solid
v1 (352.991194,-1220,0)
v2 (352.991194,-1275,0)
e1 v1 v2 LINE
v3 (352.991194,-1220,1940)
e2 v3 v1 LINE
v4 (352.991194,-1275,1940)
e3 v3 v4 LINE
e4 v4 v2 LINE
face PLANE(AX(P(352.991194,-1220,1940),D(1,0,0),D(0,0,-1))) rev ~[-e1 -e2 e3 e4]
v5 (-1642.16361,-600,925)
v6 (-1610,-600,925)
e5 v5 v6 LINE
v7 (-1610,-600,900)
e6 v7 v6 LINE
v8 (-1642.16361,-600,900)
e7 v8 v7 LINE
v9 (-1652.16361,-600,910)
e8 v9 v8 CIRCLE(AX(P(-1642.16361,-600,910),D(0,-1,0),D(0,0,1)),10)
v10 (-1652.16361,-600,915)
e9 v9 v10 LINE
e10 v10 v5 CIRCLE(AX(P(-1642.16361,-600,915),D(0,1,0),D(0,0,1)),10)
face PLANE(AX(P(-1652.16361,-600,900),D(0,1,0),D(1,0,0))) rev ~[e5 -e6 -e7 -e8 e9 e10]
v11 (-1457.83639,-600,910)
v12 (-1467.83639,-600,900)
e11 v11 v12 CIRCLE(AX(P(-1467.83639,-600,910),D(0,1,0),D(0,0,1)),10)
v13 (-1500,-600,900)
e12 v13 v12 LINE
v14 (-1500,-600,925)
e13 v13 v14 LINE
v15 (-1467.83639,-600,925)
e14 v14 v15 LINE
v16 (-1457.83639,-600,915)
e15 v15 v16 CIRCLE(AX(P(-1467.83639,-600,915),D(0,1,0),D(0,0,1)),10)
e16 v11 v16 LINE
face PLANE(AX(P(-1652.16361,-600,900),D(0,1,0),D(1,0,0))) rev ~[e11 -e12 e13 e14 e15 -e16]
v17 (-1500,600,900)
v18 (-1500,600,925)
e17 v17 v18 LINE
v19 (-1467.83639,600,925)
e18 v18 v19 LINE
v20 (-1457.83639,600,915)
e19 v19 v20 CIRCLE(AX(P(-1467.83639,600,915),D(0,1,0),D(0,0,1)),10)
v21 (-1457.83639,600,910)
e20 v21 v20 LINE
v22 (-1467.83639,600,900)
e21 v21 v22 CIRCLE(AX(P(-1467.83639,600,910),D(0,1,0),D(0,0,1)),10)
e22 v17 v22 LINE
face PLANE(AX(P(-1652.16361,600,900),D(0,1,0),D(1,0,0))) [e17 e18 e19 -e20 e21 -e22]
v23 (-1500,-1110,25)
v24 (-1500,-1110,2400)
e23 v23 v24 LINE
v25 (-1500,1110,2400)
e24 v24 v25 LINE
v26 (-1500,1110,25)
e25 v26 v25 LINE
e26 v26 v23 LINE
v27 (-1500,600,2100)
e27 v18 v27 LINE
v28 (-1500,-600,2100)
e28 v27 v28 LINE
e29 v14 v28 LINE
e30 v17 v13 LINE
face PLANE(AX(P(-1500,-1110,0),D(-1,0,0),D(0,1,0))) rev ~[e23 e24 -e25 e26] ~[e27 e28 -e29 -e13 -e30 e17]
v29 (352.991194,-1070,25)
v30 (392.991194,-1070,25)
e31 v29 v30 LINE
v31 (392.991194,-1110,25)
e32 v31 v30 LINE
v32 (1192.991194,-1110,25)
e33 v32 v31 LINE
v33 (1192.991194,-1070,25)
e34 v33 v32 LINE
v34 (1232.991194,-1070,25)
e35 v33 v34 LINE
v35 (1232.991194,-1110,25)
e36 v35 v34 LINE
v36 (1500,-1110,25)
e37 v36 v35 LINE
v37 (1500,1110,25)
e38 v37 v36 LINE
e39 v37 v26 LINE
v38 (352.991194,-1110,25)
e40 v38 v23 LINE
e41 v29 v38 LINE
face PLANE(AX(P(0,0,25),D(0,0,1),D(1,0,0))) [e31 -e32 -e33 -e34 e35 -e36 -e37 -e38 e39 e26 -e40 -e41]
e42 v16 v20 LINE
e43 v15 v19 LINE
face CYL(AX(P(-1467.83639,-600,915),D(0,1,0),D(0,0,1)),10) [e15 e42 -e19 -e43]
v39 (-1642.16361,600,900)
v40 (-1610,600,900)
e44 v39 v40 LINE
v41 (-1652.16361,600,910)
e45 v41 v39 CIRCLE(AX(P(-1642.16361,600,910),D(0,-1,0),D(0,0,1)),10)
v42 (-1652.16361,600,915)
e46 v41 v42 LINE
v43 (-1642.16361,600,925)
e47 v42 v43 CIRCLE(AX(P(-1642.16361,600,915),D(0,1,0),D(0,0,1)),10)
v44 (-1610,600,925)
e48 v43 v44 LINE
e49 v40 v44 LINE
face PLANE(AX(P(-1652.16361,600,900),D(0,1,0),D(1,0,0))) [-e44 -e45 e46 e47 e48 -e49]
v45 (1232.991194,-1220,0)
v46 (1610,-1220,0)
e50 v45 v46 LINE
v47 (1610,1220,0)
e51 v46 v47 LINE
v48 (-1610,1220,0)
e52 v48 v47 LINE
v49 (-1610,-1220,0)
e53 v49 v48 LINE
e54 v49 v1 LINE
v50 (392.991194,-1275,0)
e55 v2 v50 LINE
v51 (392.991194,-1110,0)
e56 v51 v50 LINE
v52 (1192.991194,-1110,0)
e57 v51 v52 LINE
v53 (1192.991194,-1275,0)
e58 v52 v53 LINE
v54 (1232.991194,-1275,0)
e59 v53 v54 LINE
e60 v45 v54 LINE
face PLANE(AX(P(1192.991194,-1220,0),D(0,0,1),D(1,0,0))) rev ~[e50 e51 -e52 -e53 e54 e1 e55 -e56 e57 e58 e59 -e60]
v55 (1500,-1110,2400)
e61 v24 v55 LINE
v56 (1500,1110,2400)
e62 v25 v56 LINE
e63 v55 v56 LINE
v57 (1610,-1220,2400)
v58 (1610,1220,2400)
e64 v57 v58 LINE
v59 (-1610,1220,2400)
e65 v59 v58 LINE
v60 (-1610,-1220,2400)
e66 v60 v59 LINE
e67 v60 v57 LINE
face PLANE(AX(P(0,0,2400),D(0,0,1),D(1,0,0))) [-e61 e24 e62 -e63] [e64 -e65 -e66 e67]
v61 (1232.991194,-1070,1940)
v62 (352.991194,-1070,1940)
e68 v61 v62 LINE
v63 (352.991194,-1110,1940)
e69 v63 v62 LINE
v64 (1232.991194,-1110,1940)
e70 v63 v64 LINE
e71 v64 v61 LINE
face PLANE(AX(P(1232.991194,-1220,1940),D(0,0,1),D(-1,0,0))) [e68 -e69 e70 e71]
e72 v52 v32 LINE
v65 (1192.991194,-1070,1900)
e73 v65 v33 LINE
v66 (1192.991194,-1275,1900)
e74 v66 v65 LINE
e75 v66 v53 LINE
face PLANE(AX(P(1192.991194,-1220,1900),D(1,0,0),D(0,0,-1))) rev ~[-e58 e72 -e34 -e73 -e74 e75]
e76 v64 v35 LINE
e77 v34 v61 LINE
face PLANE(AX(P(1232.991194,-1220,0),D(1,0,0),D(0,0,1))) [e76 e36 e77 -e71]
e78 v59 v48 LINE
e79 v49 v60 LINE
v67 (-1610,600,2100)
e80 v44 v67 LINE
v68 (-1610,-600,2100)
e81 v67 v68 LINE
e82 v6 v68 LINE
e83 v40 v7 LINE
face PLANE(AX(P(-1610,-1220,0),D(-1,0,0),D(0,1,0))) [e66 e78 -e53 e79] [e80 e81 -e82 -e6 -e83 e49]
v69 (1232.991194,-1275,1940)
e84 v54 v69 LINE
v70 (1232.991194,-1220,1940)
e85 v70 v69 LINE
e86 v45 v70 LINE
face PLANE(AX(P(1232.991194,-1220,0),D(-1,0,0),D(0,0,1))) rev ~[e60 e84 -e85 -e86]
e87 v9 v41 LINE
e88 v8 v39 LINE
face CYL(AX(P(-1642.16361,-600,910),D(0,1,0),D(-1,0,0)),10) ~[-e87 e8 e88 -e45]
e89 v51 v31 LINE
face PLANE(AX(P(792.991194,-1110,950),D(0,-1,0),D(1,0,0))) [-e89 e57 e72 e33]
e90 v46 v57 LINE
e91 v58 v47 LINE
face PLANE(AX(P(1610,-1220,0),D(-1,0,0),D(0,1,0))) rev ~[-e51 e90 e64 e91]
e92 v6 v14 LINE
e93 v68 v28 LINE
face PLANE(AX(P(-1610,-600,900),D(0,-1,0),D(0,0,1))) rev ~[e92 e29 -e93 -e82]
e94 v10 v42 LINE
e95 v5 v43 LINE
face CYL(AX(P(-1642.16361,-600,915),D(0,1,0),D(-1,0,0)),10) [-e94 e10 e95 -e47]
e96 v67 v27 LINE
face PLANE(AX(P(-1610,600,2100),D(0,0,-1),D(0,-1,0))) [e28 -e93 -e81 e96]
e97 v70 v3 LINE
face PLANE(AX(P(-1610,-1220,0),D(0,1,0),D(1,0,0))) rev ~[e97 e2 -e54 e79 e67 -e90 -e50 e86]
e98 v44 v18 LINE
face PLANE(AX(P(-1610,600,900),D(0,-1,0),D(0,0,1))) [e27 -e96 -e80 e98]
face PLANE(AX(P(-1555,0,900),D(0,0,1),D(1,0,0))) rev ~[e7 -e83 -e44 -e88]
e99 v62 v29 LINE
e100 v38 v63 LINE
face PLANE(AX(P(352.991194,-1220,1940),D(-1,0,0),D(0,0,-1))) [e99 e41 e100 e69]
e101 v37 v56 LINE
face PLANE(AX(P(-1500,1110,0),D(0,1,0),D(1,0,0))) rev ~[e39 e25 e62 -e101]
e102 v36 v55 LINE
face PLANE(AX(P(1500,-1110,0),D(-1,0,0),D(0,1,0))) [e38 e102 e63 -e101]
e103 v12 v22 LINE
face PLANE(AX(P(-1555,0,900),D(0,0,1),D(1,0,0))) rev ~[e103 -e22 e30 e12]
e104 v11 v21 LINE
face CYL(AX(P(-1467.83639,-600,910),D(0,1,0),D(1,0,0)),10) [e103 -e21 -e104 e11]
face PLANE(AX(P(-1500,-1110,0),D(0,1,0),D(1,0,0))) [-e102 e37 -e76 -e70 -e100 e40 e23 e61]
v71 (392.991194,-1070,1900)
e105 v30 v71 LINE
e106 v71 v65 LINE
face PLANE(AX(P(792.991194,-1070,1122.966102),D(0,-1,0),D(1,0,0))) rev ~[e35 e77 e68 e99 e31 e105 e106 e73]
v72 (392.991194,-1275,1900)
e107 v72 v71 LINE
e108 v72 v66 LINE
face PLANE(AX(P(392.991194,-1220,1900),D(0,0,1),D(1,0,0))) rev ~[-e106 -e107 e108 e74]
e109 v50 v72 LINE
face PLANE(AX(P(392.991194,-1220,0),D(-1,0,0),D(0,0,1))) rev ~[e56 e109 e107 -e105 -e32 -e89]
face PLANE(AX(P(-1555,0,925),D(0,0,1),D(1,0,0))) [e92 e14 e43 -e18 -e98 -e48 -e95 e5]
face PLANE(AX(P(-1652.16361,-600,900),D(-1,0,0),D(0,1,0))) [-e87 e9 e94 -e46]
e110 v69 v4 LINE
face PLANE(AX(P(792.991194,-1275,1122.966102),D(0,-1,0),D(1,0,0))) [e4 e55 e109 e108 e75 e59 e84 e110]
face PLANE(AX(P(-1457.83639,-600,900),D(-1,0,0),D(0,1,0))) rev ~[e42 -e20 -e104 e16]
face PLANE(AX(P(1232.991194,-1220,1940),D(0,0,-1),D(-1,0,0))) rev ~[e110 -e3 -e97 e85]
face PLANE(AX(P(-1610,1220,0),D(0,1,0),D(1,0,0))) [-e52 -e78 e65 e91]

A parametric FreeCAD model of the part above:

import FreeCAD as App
import Part
import Sketcher
from FreeCAD import Vector


def edges_at(feature, points):
    """Names of the edges that pass closest to the given points."""
    edges = feature.Shape.Edges
    near = lambda p: min(range(len(edges)), key=lambda i: edges[i].distToShape(Part.Vertex(*p))[0])
    return sorted({f"Edge{near(p) + 1}" for p in points})

doc = App.newDocument("Part")
params = doc.addObject("Spreadsheet::Sheet", "Params")
for row, (alias, value) in enumerate([
    ("sketch1_width", "3220 mm"),
    ("sketch1_height", "2440 mm"),
    ("pad1_length", "25 mm"),
    ("sketch2_width", "3220 mm"),
    ("sketch2_width2", "3000 mm"),
    ("sketch2_height", "2440 mm"),
    ("sketch2_height2", "2220 mm"),
    ("pad2_length", "2400 mm"),
    ("sketch3_width", "800 mm"),
    ("sketch3_height", "1900 mm"),
    ("pocket1_length", "110 mm"),
    ("sketch4_width", "40 mm"),
    ("sketch4_width2", "880 mm"),
    ("sketch4_height", "1900 mm"),
    ("sketch4_height2", "1940 mm"),
    ("pad3_length", "55 mm"),
    ("pad3_length2", "150 mm"),
    ("sketch5_width", "1200 mm"),
    ("pocket2_length", "2505 mm"),
    ("sketch6_height", "1200 mm"),
    ("pad4_length", "25 mm"),
    ("fillet_radius", "10 mm"),
], start=1):
    params.set(f"A{row}", alias)
    params.set(f"B{row}", "=" + value)
    params.setAlias(f"B{row}", alias)

body = doc.addObject("PartDesign::Body", "Body")

sketch1 = body.newObject("Sketcher::SketchObject", "Sketch")
sketch1.AttachmentSupport = (doc.getObject("XY_Plane"), [""])
sketch1.MapMode = "FlatFace"
sketch1.addGeometry([
    Part.LineSegment(Vector(-1610, 1220, 0), Vector(-1610, -1220, 0)),
    Part.LineSegment(Vector(-1610, -1220, 0), Vector(1610, -1220, 0)),
    Part.LineSegment(Vector(1610, -1220, 0), Vector(1610, 1220, 0)),
    Part.LineSegment(Vector(1610, 1220, 0), Vector(-1610, 1220, 0)),
], False)
sketch1.addConstraint([
    Sketcher.Constraint("Coincident", 0, 2, 1, 1),
    Sketcher.Constraint("Coincident", 1, 2, 2, 1),
    Sketcher.Constraint("Coincident", 2, 2, 3, 1),
    Sketcher.Constraint("Coincident", 3, 2, 0, 1),
    Sketcher.Constraint("Vertical", 0),
    Sketcher.Constraint("Horizontal", 1),
    Sketcher.Constraint("Vertical", 2),
    Sketcher.Constraint("Horizontal", 3),
    Sketcher.Constraint("Symmetric", 0, 2, 2, 2, -1, 1),
    Sketcher.Constraint("DistanceX", 1, 1, 1, 2, 3220.0),
    Sketcher.Constraint("DistanceY", 0, 2, 0, 1, 2440.0),
])
sketch1.setExpression("Constraints[9]", "Params.sketch1_width")
sketch1.setExpression("Constraints[10]", "Params.sketch1_height")
pad1 = body.newObject("PartDesign::Pad", "Pad")
pad1.Profile = sketch1
pad1.setExpression("Length", "Params.pad1_length")

sketch2 = body.newObject("Sketcher::SketchObject", "Sketch001")
sketch2.AttachmentSupport = (doc.getObject("XY_Plane"), [""])
sketch2.MapMode = "FlatFace"
sketch2.addGeometry([
    Part.LineSegment(Vector(-1610, 1220, 0), Vector(-1610, -1220, 0)),
    Part.LineSegment(Vector(-1610, -1220, 0), Vector(1610, -1220, 0)),
    Part.LineSegment(Vector(1610, -1220, 0), Vector(1610, 1220, 0)),
    Part.LineSegment(Vector(1610, 1220, 0), Vector(-1610, 1220, 0)),
    Part.LineSegment(Vector(1500, -1110, 0), Vector(-1500, -1110, 0)),
    Part.LineSegment(Vector(-1500, -1110, 0), Vector(-1500, 1110, 0)),
    Part.LineSegment(Vector(-1500, 1110, 0), Vector(1500, 1110, 0)),
    Part.LineSegment(Vector(1500, 1110, 0), Vector(1500, -1110, 0)),
], False)
sketch2.addConstraint([
    Sketcher.Constraint("Coincident", 0, 2, 1, 1),
    Sketcher.Constraint("Coincident", 1, 2, 2, 1),
    Sketcher.Constraint("Coincident", 2, 2, 3, 1),
    Sketcher.Constraint("Coincident", 3, 2, 0, 1),
    Sketcher.Constraint("Coincident", 4, 2, 5, 1),
    Sketcher.Constraint("Coincident", 5, 2, 6, 1),
    Sketcher.Constraint("Coincident", 6, 2, 7, 1),
    Sketcher.Constraint("Coincident", 7, 2, 4, 1),
    Sketcher.Constraint("Vertical", 0),
    Sketcher.Constraint("Horizontal", 1),
    Sketcher.Constraint("Vertical", 2),
    Sketcher.Constraint("Horizontal", 3),
    Sketcher.Constraint("Horizontal", 4),
    Sketcher.Constraint("Vertical", 5),
    Sketcher.Constraint("Horizontal", 6),
    Sketcher.Constraint("Vertical", 7),
    Sketcher.Constraint("Symmetric", 0, 2, 2, 2, -1, 1),
    Sketcher.Constraint("Symmetric", 4, 2, 6, 2, -1, 1),
    Sketcher.Constraint("DistanceX", 1, 1, 1, 2, 3220.0),
    Sketcher.Constraint("DistanceX", 4, 2, 4, 1, 3000.0),
    Sketcher.Constraint("DistanceY", 0, 2, 0, 1, 2440.0),
    Sketcher.Constraint("DistanceY", 5, 1, 5, 2, 2220.0),
])
sketch2.setExpression("Constraints[18]", "Params.sketch2_width")
sketch2.setExpression("Constraints[19]", "Params.sketch2_width2")
sketch2.setExpression("Constraints[20]", "Params.sketch2_height")
sketch2.setExpression("Constraints[21]", "Params.sketch2_height2")
pad2 = body.newObject("PartDesign::Pad", "Pad001")
pad2.Profile = sketch2
pad2.setExpression("Length", "Params.pad2_length")

sketch3 = body.newObject("Sketcher::SketchObject", "Sketch002")
sketch3.AttachmentSupport = (doc.getObject("XZ_Plane"), [""])
sketch3.MapMode = "FlatFace"
sketch3.AttachmentOffset = App.Placement(Vector(0, 0, 1220), App.Rotation())
sketch3.addGeometry([
    Part.LineSegment(Vector(393, 1900, 0), Vector(393, 0, 0)),
    Part.LineSegment(Vector(393, 0, 0), Vector(1193, 0, 0)),
    Part.LineSegment(Vector(1193, 0, 0), Vector(1193, 1900, 0)),
    Part.LineSegment(Vector(1193, 1900, 0), Vector(393, 1900, 0)),
], False)
sketch3.addConstraint([
    Sketcher.Constraint("Coincident", 0, 2, 1, 1),
    Sketcher.Constraint("Coincident", 1, 2, 2, 1),
    Sketcher.Constraint("Coincident", 2, 2, 3, 1),
    Sketcher.Constraint("Coincident", 3, 2, 0, 1),
    Sketcher.Constraint("Vertical", 0),
    Sketcher.Constraint("Horizontal", 1),
    Sketcher.Constraint("Vertical", 2),
    Sketcher.Constraint("Horizontal", 3),
    Sketcher.Constraint("PointOnObject", 0, 2, -1),
    Sketcher.Constraint("DistanceX", 1, 1, 1, 2, 800.0),
    Sketcher.Constraint("DistanceY", 0, 2, 0, 1, 1900.0),
    Sketcher.Constraint("DistanceX", -1, 1, 0, 2, 392.991194),
])
sketch3.setExpression("Constraints[9]", "Params.sketch3_width")
sketch3.setExpression("Constraints[10]", "Params.sketch3_height")
pocket1 = body.newObject("PartDesign::Pocket", "Pocket")
pocket1.Profile = sketch3
pocket1.setExpression("Length", "Params.pocket1_length")

sketch4 = body.newObject("Sketcher::SketchObject", "Sketch003")
sketch4.AttachmentSupport = (doc.getObject("XZ_Plane"), [""])
sketch4.MapMode = "FlatFace"
sketch4.AttachmentOffset = App.Placement(Vector(0, 0, 1220), App.Rotation())
sketch4.addGeometry([
    Part.LineSegment(Vector(1193, 1900, 0), Vector(1193, 0, 0)),
    Part.LineSegment(Vector(1193, 0, 0), Vector(1233, 0, 0)),
    Part.LineSegment(Vector(1233, 0, 0), Vector(1233, 1940, 0)),
    Part.LineSegment(Vector(1233, 1940, 0), Vector(353, 1940, 0)),
    Part.LineSegment(Vector(353, 1940, 0), Vector(353, 0, 0)),
    Part.LineSegment(Vector(353, 0, 0), Vector(393, 0, 0)),
    Part.LineSegment(Vector(393, 0, 0), Vector(393, 1900, 0)),
    Part.LineSegment(Vector(393, 1900, 0), Vector(1193, 1900, 0)),
], False)
sketch4.addConstraint([
    Sketcher.Constraint("Coincident", 0, 2, 1, 1),
    Sketcher.Constraint("Coincident", 1, 2, 2, 1),
    Sketcher.Constraint("Coincident", 2, 2, 3, 1),
    Sketcher.Constraint("Coincident", 3, 2, 4, 1),
    Sketcher.Constraint("Coincident", 4, 2, 5, 1),
    Sketcher.Constraint("Coincident", 5, 2, 6, 1),
    Sketcher.Constraint("Coincident", 6, 2, 7, 1),
    Sketcher.Constraint("Coincident", 7, 2, 0, 1),
    Sketcher.Constraint("Vertical", 0),
    Sketcher.Constraint("Horizontal", 1),
    Sketcher.Constraint("Vertical", 2),
    Sketcher.Constraint("Horizontal", 3),
    Sketcher.Constraint("Vertical", 4),
    Sketcher.Constraint("Horizontal", 5),
    Sketcher.Constraint("Vertical", 6),
    Sketcher.Constraint("Horizontal", 7),
    Sketcher.Constraint("PointOnObject", 0, 2, -1),
    Sketcher.Constraint("PointOnObject", 4, 2, -1),
    Sketcher.Constraint("Equal", 1, 5),
    Sketcher.Constraint("DistanceX", 1, 1, 1, 2, 40.0),
    Sketcher.Constraint("DistanceX", 3, 2, 3, 1, 880.0),
    Sketcher.Constraint("DistanceY", 0, 2, 0, 1, 1900.0),
    Sketcher.Constraint("DistanceY", 2, 1, 2, 2, 1940.0),
    Sketcher.Constraint("DistanceX", -1, 1, 0, 2, 1192.991194),
])
sketch4.setExpression("Constraints[19]", "Params.sketch4_width")
sketch4.setExpression("Constraints[20]", "Params.sketch4_width2")
sketch4.setExpression("Constraints[21]", "Params.sketch4_height")
sketch4.setExpression("Constraints[22]", "Params.sketch4_height2")
pad3 = body.newObject("PartDesign::Pad", "Pad002")
pad3.Profile = sketch4
pad3.Type = "TwoLengths"
pad3.setExpression("Length", "Params.pad3_length")
pad3.setExpression("Length2", "Params.pad3_length2")

sketch5 = body.newObject("Sketcher::SketchObject", "Sketch004")
sketch5.AttachmentSupport = (doc.getObject("YZ_Plane"), [""])
sketch5.MapMode = "FlatFace"
sketch5.AttachmentOffset = App.Placement(Vector(0, 0, -1610), App.Rotation())
sketch5.addGeometry([
    Part.LineSegment(Vector(600, 2100, 0), Vector(600, 900, 0)),
    Part.LineSegment(Vector(600, 900, 0), Vector(-600, 900, 0)),
    Part.LineSegment(Vector(-600, 900, 0), Vector(-600, 2100, 0)),
    Part.LineSegment(Vector(-600, 2100, 0), Vector(600, 2100, 0)),
], False)
sketch5.addConstraint([
    Sketcher.Constraint("Coincident", 0, 2, 1, 1),
    Sketcher.Constraint("Coincident", 1, 2, 2, 1),
    Sketcher.Constraint("Coincident", 2, 2, 3, 1),
    Sketcher.Constraint("Coincident", 3, 2, 0, 1),
    Sketcher.Constraint("Vertical", 0),
    Sketcher.Constraint("Horizontal", 1),
    Sketcher.Constraint("Vertical", 2),
    Sketcher.Constraint("Horizontal", 3),
    Sketcher.Constraint("Equal", 3, 0),
    Sketcher.Constraint("DistanceX", 1, 2, 1, 1, 1200.0),
    Sketcher.Constraint("DistanceX", -1, 1, 0, 2, 600.0),
    Sketcher.Constraint("DistanceY", -1, 1, 0, 2, 900.0),
])
sketch5.setExpression("Constraints[9]", "Params.sketch5_width")
pocket2 = body.newObject("PartDesign::Pocket", "Pocket001")
pocket2.Profile = sketch5
pocket2.setExpression("Length", "Params.pocket2_length")
pocket2.Reversed = True

sketch6 = body.newObject("Sketcher::SketchObject", "Sketch005")
sketch6.AttachmentSupport = (doc.getObject("XY_Plane"), [""])
sketch6.MapMode = "FlatFace"
sketch6.AttachmentOffset = App.Placement(Vector(0, 0, 900), App.Rotation())
sketch6.addGeometry([
    Part.LineSegment(Vector(-1652, 600, 0), Vector(-1652, -600, 0)),
    Part.LineSegment(Vector(-1652, -600, 0), Vector(-1458, -600, 0)),
    Part.LineSegment(Vector(-1458, -600, 0), Vector(-1458, 600, 0)),
    Part.LineSegment(Vector(-1458, 600, 0), Vector(-1652, 600, 0)),
], False)
sketch6.addConstraint([
    Sketcher.Constraint("Coincident", 0, 2, 1, 1),
    Sketcher.Constraint("Coincident", 1, 2, 2, 1),
    Sketcher.Constraint("Coincident", 2, 2, 3, 1),
    Sketcher.Constraint("Coincident", 3, 2, 0, 1),
    Sketcher.Constraint("Vertical", 0),
    Sketcher.Constraint("Horizontal", 1),
    Sketcher.Constraint("Vertical", 2),
    Sketcher.Constraint("Horizontal", 3),
    Sketcher.Constraint("DistanceY", 0, 2, 0, 1, 1200.0),
    Sketcher.Constraint("DistanceY", 0, 2, -1, 1, 600.0),
    Sketcher.Constraint("DistanceX", 1, 1, 1, 2, 194.32722),
    Sketcher.Constraint("DistanceX", 0, 2, -1, 1, 1652.16361),
])
sketch6.setExpression("Constraints[8]", "Params.sketch6_height")
pad4 = body.newObject("PartDesign::Pad", "Pad003")
pad4.Profile = sketch6
pad4.setExpression("Length", "Params.pad4_length")
doc.recompute()

fillet = body.newObject("PartDesign::Fillet", "Fillet")
fillet.Base = (pad4, edges_at(pad4, [
    (-1457.836, 0, 925),
    (-1457.836, 0, 900),
    (-1652.164, 0, 925),
    (-1652.164, 0, 900),
]))
fillet.setExpression("Radius", "Params.fillet_radius")

doc.recompute()
